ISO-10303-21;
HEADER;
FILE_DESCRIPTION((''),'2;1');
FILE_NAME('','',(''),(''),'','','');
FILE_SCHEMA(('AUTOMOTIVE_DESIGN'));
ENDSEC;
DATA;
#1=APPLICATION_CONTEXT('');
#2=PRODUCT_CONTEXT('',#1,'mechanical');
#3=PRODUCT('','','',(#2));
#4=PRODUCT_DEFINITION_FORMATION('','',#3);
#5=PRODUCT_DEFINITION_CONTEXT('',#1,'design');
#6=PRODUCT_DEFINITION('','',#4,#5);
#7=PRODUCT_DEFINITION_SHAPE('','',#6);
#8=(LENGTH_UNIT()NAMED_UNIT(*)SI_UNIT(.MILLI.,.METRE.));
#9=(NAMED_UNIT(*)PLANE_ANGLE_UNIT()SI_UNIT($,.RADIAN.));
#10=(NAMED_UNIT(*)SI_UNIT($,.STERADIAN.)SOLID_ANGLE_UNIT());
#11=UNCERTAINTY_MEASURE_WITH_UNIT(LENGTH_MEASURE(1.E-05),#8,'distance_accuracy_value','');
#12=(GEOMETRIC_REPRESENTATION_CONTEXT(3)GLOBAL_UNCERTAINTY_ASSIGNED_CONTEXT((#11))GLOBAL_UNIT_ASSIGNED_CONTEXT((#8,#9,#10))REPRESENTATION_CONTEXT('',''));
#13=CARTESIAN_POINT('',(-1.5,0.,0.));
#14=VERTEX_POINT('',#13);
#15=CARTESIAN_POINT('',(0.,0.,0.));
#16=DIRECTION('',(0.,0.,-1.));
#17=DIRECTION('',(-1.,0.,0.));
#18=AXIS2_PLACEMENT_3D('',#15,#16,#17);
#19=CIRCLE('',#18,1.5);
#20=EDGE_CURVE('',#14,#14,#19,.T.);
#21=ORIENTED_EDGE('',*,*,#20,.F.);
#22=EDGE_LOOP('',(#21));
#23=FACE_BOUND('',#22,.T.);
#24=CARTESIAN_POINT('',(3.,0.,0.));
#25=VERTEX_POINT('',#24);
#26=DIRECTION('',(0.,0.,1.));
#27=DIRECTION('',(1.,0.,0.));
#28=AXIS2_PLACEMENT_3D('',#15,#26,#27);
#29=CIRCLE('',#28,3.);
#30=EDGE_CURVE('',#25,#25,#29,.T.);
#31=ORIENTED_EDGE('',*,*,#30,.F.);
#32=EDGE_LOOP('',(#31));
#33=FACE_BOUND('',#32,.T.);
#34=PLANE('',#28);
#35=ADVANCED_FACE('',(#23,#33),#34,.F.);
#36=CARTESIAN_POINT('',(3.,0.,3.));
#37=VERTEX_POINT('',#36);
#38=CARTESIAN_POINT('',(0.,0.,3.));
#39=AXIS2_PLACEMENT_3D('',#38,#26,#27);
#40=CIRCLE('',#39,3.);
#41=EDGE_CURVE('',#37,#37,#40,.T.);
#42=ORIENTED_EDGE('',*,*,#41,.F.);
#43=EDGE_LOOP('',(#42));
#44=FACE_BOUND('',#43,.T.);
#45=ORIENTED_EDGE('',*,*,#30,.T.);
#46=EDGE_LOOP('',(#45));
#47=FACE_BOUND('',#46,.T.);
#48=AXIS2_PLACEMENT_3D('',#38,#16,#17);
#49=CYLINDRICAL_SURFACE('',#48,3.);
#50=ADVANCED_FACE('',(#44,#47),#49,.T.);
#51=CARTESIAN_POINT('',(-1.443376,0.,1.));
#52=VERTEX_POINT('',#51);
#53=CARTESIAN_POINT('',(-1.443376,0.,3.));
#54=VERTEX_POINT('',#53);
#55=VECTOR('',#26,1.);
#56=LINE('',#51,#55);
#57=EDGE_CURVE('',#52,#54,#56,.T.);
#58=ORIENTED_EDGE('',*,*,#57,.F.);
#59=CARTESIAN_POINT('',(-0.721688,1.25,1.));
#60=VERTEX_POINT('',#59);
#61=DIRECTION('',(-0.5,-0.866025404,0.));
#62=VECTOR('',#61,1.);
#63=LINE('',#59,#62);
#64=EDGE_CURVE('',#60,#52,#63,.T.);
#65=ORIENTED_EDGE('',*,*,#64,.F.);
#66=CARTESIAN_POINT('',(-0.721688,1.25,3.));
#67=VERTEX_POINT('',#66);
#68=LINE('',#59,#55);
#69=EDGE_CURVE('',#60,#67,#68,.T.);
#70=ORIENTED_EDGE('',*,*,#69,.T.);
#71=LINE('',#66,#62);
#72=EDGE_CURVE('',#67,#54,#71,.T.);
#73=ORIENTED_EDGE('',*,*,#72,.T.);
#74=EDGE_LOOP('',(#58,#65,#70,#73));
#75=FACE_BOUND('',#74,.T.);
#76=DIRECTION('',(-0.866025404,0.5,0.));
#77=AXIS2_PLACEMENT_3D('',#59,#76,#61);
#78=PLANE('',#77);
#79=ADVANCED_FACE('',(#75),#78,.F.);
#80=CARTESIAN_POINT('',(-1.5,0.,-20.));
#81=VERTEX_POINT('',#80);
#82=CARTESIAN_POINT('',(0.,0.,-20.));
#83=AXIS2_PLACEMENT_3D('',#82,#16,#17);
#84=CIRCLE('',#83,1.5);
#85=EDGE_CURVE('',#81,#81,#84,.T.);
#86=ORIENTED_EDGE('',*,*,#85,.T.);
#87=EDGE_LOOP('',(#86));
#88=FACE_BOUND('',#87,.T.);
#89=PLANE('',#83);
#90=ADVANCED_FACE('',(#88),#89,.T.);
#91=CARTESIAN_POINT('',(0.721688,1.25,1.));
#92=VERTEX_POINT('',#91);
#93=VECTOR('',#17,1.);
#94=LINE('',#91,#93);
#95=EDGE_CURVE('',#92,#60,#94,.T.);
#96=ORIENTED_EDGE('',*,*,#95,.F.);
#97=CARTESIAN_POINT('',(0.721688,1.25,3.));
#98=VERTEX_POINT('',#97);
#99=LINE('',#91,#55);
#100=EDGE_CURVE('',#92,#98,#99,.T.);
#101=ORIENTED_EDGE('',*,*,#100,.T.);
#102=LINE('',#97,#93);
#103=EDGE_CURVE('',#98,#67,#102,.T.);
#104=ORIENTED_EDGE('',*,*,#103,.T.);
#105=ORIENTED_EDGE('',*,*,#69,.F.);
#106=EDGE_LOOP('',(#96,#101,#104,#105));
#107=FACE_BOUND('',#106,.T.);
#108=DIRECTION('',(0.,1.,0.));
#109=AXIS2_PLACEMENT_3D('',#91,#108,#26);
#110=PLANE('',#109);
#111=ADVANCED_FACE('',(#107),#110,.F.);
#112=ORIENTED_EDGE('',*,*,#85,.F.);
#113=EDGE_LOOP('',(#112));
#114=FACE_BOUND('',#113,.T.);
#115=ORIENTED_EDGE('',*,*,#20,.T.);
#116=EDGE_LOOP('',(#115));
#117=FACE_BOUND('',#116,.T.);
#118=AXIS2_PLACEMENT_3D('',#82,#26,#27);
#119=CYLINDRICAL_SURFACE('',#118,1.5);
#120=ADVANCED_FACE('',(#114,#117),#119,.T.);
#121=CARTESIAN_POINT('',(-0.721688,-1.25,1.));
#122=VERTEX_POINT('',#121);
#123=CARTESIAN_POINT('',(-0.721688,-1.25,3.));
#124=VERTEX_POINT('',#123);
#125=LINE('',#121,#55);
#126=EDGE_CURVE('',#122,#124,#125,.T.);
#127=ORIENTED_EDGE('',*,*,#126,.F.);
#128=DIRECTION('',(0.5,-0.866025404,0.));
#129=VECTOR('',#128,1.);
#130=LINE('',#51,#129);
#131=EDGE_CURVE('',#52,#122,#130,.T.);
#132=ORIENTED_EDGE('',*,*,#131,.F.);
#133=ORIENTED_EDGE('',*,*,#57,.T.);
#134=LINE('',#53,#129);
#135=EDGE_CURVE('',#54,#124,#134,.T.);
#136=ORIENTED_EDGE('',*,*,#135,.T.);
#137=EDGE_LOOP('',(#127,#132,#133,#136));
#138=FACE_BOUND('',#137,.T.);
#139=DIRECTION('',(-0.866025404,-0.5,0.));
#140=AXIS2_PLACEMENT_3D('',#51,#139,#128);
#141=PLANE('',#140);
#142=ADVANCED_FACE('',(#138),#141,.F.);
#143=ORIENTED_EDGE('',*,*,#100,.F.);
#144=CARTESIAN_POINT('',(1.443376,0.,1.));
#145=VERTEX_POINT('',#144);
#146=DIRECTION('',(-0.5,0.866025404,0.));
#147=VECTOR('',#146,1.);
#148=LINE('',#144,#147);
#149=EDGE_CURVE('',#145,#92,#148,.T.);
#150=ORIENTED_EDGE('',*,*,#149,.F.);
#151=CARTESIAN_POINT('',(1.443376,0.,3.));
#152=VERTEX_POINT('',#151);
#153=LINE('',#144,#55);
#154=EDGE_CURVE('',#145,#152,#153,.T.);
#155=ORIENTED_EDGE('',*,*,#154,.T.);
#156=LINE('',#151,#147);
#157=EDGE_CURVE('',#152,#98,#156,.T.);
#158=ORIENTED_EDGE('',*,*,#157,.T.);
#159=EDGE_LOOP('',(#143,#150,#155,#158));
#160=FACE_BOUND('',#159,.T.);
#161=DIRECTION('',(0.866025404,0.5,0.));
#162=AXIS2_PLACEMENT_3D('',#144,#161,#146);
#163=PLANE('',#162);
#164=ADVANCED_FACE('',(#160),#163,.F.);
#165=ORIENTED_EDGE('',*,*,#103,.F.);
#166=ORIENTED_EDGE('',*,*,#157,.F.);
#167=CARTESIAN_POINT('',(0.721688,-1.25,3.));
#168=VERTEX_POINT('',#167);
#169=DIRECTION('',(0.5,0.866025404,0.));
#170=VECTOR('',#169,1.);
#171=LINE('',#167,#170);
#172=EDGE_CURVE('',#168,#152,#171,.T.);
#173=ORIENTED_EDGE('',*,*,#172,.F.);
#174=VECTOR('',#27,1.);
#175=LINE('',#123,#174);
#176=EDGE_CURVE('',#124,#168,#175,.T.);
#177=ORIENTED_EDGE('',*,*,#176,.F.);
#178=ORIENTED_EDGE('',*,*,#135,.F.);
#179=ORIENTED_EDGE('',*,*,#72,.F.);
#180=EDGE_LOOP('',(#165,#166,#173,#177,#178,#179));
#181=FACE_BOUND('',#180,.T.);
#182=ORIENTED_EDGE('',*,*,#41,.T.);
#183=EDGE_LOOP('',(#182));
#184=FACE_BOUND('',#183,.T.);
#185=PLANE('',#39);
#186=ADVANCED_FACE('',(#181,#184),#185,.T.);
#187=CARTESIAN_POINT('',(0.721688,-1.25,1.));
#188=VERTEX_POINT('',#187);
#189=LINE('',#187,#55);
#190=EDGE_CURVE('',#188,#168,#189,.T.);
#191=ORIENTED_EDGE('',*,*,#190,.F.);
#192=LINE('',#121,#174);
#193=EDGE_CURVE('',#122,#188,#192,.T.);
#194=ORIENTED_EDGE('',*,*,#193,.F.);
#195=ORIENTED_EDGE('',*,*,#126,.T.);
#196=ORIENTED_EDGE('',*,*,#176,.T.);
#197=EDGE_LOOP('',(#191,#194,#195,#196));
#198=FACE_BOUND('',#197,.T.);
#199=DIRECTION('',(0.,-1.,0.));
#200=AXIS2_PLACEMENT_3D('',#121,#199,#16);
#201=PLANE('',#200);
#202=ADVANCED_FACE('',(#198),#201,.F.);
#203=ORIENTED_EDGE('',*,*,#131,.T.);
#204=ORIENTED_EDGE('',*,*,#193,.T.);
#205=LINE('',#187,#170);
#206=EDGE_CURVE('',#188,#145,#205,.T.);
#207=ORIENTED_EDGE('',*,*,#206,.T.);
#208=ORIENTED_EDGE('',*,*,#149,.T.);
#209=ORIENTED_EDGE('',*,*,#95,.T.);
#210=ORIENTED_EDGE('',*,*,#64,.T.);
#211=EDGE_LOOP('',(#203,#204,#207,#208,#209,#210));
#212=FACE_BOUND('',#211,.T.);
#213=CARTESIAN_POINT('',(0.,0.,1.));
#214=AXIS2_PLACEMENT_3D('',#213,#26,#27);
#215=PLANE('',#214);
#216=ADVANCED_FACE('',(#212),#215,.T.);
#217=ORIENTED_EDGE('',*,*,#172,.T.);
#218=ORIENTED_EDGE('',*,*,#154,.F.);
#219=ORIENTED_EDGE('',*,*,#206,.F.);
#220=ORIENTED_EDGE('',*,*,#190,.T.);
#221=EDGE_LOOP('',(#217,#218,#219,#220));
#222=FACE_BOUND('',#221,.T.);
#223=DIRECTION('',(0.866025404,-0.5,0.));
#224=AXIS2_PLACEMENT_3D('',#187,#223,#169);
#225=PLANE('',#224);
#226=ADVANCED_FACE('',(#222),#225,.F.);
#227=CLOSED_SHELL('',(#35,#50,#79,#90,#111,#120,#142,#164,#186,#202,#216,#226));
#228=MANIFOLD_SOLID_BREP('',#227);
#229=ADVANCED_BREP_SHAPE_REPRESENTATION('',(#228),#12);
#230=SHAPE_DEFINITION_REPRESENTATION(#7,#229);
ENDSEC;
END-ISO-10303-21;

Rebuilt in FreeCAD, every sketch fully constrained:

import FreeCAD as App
import Part
import Sketcher

V = App.Vector
Q = App.Units.Quantity

doc = App.newDocument("Part")
body = doc.addObject("PartDesign::Body", "Body")

# Sketch on XY plane
sketch1 = body.newObject("Sketcher::SketchObject", "Sketch")
sketch1.AttachmentSupport = (doc.getObject("XY_Plane"), [""])
sketch1.MapMode = "FlatFace"
sketch1.addGeometry(Part.Circle(V(0, 0, 0), V(0, 0, 1), 3), False)
sketch1.addConstraint(Sketcher.Constraint("Coincident", 0, 3, -1, 1))
sketch1.addConstraint(Sketcher.Constraint("Diameter", 0, 6.0))
pad1 = body.newObject("PartDesign::Pad", "Pad")
pad1.Profile = sketch1
pad1.Length = 3

# Sketch on XY plane
sketch2 = body.newObject("Sketcher::SketchObject", "Sketch001")
sketch2.AttachmentSupport = (doc.getObject("XY_Plane"), [""])
sketch2.MapMode = "FlatFace"
sketch2.AttachmentOffset = App.Placement(V(0, 0, 3), App.Rotation())
sketch2.addGeometry(Part.LineSegment(V(1.4, 0, 0), V(0.7, 1.2, 0)), False)
sketch2.addGeometry(Part.LineSegment(V(0.7, 1.2, 0), V(-0.7, 1.2, 0)), False)
sketch2.addGeometry(Part.LineSegment(V(-0.7, 1.2, 0), V(-1.4, 0, 0)), False)
sketch2.addGeometry(Part.LineSegment(V(-1.4, 0, 0), V(-0.7, -1.2, 0)), False)
sketch2.addGeometry(Part.LineSegment(V(-0.7, -1.2, 0), V(0.7, -1.2, 0)), False)
sketch2.addGeometry(Part.LineSegment(V(0.7, -1.2, 0), V(1.4, 0, 0)), False)
sketch2.addConstraint(Sketcher.Constraint("Coincident", 0, 2, 1, 1))
sketch2.addConstraint(Sketcher.Constraint("Coincident", 1, 2, 2, 1))
sketch2.addConstraint(Sketcher.Constraint("Coincident", 2, 2, 3, 1))
sketch2.addConstraint(Sketcher.Constraint("Coincident", 3, 2, 4, 1))
sketch2.addConstraint(Sketcher.Constraint("Coincident", 4, 2, 5, 1))
sketch2.addConstraint(Sketcher.Constraint("Coincident", 5, 2, 0, 1))
sketch2.addConstraint(Sketcher.Constraint("Horizontal", 1))
sketch2.addConstraint(Sketcher.Constraint("Horizontal", 4))
sketch2.addConstraint(Sketcher.Constraint("Symmetric", 0, 2, 3, 2, -1, 1))
sketch2.addConstraint(Sketcher.Constraint("Symmetric", 2, 2, 5, 2, -1, 1))
sketch2.addConstraint(Sketcher.Constraint("PointOnObject", 2, 2, -1))
sketch2.addConstraint(Sketcher.Constraint("Parallel", 2, 5))
sketch2.addConstraint(Sketcher.Constraint("Vertical", 1, 2, 3, 2))
sketch2.addConstraint(Sketcher.Constraint("Angle", 0, Q("120 deg")))
sketch2.addConstraint(Sketcher.Constraint("DistanceY", 3, 2, 1, 2, 2.5))
sketch2.addConstraint(Sketcher.Constraint("DistanceX", 1, 2, 1, 1, 1.443376))
pocket1 = body.newObject("PartDesign::Pocket", "Pocket")
pocket1.Profile = sketch2
pocket1.Length = 2

# Sketch on XY plane
sketch3 = body.newObject("Sketcher::SketchObject", "Sketch002")
sketch3.AttachmentSupport = (doc.getObject("XY_Plane"), [""])
sketch3.MapMode = "FlatFace"
sketch3.addGeometry(Part.Circle(V(0, 0, 0), V(0, 0, 1), 1.5), False)
sketch3.addConstraint(Sketcher.Constraint("Coincident", 0, 3, -1, 1))
sketch3.addConstraint(Sketcher.Constraint("Diameter", 0, 3.0))
pad2 = body.newObject("PartDesign::Pad", "Pad001")
pad2.Profile = sketch3
pad2.Length = 20
pad2.Reversed = True

doc.recompute()
